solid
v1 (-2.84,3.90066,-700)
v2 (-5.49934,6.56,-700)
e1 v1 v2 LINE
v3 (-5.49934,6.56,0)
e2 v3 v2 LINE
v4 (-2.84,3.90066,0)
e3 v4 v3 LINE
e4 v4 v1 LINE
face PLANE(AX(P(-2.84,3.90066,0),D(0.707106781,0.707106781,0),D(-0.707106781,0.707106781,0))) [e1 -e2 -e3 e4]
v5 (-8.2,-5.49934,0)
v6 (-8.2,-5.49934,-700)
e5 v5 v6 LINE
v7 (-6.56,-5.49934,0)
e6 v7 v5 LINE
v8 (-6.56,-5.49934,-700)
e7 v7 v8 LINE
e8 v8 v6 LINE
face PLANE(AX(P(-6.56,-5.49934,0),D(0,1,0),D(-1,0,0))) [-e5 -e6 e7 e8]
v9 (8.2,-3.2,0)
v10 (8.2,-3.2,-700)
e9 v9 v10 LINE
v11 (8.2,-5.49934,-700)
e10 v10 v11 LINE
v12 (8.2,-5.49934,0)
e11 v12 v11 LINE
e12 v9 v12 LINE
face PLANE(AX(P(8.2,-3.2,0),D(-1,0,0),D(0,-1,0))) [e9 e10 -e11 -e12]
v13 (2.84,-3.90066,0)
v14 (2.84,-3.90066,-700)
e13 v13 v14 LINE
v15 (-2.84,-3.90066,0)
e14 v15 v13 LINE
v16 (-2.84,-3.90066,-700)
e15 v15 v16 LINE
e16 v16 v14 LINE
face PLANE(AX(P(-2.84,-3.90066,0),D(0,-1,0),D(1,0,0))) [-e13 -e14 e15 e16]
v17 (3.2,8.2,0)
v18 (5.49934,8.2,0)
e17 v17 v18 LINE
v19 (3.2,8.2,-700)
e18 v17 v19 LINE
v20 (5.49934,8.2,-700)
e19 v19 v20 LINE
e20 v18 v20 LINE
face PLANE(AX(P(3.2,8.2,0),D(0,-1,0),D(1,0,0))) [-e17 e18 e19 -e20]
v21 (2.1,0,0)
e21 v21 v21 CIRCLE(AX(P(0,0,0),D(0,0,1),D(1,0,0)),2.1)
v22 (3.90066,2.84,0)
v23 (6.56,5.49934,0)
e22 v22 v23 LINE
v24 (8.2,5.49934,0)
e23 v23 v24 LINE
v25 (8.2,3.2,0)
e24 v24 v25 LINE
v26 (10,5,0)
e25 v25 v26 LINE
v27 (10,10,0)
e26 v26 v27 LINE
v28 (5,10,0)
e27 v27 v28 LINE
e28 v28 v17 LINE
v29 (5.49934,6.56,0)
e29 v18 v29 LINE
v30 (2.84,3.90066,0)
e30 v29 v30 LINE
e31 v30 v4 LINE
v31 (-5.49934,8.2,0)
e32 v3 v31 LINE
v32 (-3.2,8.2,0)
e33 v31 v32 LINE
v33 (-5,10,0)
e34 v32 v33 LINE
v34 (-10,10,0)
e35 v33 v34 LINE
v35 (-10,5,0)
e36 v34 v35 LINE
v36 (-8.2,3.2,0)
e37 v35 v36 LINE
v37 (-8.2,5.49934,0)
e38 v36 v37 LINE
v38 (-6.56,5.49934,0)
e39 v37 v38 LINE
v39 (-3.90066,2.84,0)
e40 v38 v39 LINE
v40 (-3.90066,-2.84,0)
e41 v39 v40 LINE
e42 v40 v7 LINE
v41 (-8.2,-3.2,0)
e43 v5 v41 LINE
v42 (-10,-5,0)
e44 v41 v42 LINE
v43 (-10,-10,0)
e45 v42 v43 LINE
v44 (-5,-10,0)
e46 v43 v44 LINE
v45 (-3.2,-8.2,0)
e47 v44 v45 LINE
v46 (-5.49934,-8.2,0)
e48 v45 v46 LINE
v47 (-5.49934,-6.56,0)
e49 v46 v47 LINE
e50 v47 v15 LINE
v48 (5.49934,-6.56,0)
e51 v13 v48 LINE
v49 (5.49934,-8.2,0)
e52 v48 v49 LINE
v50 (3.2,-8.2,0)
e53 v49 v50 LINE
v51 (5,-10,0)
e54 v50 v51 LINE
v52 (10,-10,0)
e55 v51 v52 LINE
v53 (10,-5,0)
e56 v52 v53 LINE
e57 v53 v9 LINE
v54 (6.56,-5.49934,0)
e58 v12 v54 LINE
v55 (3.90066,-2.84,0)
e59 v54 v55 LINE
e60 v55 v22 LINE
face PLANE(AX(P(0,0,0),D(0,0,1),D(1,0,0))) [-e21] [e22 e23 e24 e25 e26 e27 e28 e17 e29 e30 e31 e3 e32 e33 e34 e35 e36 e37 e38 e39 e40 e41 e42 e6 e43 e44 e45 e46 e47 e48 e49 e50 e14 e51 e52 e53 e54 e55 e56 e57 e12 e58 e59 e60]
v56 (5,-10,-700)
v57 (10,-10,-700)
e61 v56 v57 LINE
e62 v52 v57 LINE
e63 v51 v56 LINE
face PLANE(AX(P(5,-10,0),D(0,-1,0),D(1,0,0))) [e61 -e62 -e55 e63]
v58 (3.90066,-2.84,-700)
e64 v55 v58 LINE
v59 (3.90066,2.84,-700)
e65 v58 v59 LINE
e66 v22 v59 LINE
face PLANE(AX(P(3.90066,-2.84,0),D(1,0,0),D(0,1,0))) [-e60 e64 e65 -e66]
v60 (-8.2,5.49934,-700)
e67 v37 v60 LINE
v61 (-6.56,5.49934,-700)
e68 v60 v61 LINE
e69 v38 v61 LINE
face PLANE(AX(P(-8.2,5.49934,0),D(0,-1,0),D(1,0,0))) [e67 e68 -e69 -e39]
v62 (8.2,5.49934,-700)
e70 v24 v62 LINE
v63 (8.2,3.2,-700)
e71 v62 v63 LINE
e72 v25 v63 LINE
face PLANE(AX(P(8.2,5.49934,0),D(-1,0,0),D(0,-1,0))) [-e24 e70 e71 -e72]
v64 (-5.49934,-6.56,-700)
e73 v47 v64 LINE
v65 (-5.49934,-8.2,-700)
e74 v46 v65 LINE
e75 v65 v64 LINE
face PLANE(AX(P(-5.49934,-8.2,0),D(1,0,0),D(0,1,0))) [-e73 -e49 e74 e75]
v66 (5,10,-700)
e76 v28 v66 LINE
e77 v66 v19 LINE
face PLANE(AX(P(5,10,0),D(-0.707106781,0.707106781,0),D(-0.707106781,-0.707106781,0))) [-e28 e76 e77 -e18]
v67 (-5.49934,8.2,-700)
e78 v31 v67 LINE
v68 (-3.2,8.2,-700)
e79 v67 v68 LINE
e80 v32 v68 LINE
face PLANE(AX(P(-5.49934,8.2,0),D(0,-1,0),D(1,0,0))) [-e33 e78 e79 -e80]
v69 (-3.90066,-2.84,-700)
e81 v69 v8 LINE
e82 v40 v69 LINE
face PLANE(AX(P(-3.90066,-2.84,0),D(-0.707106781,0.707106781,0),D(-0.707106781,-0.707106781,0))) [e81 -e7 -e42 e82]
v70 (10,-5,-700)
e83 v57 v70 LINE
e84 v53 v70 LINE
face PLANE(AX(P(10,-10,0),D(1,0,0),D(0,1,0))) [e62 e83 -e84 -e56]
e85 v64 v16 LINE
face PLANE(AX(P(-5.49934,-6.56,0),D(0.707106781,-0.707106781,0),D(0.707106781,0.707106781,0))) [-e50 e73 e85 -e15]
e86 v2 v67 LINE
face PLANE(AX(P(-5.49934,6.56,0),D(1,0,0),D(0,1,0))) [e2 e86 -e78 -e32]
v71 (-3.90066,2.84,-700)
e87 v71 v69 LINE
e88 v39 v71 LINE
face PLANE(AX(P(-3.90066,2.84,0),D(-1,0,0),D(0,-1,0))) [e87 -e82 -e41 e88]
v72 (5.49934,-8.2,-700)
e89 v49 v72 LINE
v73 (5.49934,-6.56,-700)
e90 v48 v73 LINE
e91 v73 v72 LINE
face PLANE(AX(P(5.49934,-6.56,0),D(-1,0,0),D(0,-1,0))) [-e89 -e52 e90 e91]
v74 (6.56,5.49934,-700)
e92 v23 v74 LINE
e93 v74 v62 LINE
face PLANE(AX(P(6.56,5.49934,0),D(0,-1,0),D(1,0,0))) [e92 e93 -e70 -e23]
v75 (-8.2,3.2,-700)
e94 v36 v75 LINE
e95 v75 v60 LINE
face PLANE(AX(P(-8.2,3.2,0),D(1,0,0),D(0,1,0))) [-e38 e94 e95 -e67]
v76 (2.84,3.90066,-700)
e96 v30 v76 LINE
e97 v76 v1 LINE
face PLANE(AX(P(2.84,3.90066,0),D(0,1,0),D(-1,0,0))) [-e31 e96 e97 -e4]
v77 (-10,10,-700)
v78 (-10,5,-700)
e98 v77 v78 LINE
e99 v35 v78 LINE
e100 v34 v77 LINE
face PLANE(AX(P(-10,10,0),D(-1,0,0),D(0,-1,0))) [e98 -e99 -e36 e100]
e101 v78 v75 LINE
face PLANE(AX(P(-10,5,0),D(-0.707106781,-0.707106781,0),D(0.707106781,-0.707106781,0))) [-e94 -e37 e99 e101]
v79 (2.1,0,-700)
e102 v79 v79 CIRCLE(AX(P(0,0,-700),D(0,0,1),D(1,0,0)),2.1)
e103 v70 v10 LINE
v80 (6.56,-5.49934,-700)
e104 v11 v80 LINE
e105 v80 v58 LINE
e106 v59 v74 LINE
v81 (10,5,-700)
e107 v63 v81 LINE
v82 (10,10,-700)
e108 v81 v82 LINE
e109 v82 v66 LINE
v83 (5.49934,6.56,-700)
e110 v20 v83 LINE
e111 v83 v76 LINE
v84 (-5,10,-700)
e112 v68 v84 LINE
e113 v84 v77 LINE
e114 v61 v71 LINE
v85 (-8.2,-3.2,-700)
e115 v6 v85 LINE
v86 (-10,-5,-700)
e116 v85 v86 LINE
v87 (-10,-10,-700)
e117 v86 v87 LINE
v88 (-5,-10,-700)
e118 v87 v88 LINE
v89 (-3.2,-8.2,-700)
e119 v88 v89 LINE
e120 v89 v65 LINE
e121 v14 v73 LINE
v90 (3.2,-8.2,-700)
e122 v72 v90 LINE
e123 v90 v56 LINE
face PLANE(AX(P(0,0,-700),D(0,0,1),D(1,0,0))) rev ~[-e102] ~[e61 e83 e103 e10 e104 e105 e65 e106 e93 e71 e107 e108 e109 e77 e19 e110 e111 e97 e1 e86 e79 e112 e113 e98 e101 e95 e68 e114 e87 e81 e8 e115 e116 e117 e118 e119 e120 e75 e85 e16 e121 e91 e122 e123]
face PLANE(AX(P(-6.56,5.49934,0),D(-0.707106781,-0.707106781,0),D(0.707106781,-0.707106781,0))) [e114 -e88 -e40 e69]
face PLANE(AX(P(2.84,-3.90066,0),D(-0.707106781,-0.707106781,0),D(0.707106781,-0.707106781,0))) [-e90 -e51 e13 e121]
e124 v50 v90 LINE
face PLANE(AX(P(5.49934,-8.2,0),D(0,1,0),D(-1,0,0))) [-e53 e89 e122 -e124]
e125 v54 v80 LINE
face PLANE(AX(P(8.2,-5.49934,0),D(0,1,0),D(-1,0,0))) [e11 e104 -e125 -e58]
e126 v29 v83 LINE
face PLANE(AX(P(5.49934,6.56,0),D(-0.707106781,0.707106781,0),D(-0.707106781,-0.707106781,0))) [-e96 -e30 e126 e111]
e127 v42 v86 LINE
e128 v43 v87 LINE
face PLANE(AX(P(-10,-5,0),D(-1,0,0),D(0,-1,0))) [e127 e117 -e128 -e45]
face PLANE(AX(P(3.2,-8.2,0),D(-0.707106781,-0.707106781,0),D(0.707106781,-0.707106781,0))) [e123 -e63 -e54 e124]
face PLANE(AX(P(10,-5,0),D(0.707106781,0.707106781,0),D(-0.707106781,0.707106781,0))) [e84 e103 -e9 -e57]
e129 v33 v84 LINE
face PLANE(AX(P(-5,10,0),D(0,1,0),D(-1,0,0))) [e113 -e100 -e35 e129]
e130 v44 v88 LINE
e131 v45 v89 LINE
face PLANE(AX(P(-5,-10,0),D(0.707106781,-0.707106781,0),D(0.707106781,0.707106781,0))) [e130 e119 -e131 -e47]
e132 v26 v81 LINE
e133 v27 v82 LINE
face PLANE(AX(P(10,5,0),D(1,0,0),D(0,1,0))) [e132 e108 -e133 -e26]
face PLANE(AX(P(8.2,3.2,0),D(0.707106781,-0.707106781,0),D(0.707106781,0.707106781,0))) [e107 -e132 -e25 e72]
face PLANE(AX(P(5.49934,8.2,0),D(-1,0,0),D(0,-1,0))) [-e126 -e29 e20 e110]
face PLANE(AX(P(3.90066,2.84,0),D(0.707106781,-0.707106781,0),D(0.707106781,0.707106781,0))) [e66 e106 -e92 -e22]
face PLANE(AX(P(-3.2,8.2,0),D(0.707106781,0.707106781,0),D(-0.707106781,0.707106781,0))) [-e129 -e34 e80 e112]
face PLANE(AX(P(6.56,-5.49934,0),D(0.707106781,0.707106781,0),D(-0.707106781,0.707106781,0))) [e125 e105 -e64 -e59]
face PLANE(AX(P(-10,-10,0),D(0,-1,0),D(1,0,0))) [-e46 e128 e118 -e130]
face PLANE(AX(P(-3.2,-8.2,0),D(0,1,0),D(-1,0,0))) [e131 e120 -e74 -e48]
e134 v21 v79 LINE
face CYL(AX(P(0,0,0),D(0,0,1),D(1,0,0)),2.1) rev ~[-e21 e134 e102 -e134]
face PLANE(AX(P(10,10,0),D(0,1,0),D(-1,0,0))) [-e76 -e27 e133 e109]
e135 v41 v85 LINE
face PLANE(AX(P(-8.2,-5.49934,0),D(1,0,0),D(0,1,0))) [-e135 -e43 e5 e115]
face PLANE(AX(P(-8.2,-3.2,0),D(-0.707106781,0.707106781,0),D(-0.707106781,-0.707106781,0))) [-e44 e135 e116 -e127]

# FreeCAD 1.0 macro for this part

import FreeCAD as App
import Part
import Sketcher

V = App.Vector


def add_polygon(sketch, points):
    """Adds a closed chain of lines whose ends are joined by coincident constraints."""
    first, n = sketch.GeometryCount, len(points)
    for a, b in zip(points, points[1:] + points[:1]):
        sketch.addGeometry(Part.LineSegment(App.Vector(*a, 0), App.Vector(*b, 0)), False)
    for i in range(n):
        sketch.addConstraint(Sketcher.Constraint("Coincident", first + i, 2, first + (i + 1) % n, 1))

doc = App.newDocument("Part")
body = doc.addObject("PartDesign::Body", "Body")

sketch1 = body.newObject("Sketcher::SketchObject", "Sketch")
sketch1.AttachmentSupport = (doc.getObject("XY_Plane"), [""])
sketch1.MapMode = "FlatFace"
add_polygon(sketch1, [(-10, 10), (-10, 5), (-8.2, 3.2), (-8.2, 5.49934), (-6.56, 5.49934), (-3.90066, 2.84), (-3.90066, -2.84), (-6.56, -5.49934), (-8.2, -5.49934), (-8.2, -3.2), (-10, -5), (-10, -10), (-5, -10), (-3.2, -8.2), (-5.49934, -8.2), (-5.49934, -6.56), (-2.84, -3.90066), (2.84, -3.90066), (5.49934, -6.56), (5.49934, -8.2), (3.2, -8.2), (5, -10), (10, -10), (10, -5), (8.2, -3.2), (8.2, -5.49934), (6.56, -5.49934), (3.90066, -2.84), (3.90066, 2.84), (6.56, 5.49934), (8.2, 5.49934), (8.2, 3.2), (10, 5), (10, 10), (5, 10), (3.2, 8.2), (5.49934, 8.2), (5.49934, 6.56), (2.84, 3.90066), (-2.84, 3.90066), (-5.49934, 6.56), (-5.49934, 8.2), (-3.2, 8.2), (-5, 10)])
sketch1.addGeometry(Part.Circle(V(0, 0, 0), V(0, 0, 1), 2.1), False)
sketch1.addConstraint(Sketcher.Constraint("Vertical", 0))
sketch1.addConstraint(Sketcher.Constraint("Vertical", 2))
sketch1.addConstraint(Sketcher.Constraint("Horizontal", 3))
sketch1.addConstraint(Sketcher.Constraint("Vertical", 5))
sketch1.addConstraint(Sketcher.Constraint("Horizontal", 7))
sketch1.addConstraint(Sketcher.Constraint("Vertical", 8))
sketch1.addConstraint(Sketcher.Constraint("Vertical", 10))
sketch1.addConstraint(Sketcher.Constraint("Horizontal", 11))
sketch1.addConstraint(Sketcher.Constraint("Horizontal", 13))
sketch1.addConstraint(Sketcher.Constraint("Vertical", 14))
sketch1.addConstraint(Sketcher.Constraint("Horizontal", 16))
sketch1.addConstraint(Sketcher.Constraint("Vertical", 18))
sketch1.addConstraint(Sketcher.Constraint("Horizontal", 19))
sketch1.addConstraint(Sketcher.Constraint("Horizontal", 21))
sketch1.addConstraint(Sketcher.Constraint("Vertical", 22))
sketch1.addConstraint(Sketcher.Constraint("Vertical", 24))
sketch1.addConstraint(Sketcher.Constraint("Horizontal", 25))
sketch1.addConstraint(Sketcher.Constraint("Vertical", 27))
sketch1.addConstraint(Sketcher.Constraint("Horizontal", 29))
sketch1.addConstraint(Sketcher.Constraint("Vertical", 30))
sketch1.addConstraint(Sketcher.Constraint("Vertical", 32))
sketch1.addConstraint(Sketcher.Constraint("Horizontal", 33))
sketch1.addConstraint(Sketcher.Constraint("Horizontal", 35))
sketch1.addConstraint(Sketcher.Constraint("Vertical", 36))
sketch1.addConstraint(Sketcher.Constraint("Horizontal", 38))
sketch1.addConstraint(Sketcher.Constraint("Vertical", 40))
sketch1.addConstraint(Sketcher.Constraint("Horizontal", 41))
sketch1.addConstraint(Sketcher.Constraint("Horizontal", 43))
sketch1.addConstraint(Sketcher.Constraint("Coincident", 44, 3, -1, 1))
sketch1.addConstraint(Sketcher.Constraint("Symmetric", 0, 2, 22, 2, -1, 1))
sketch1.addConstraint(Sketcher.Constraint("Symmetric", 1, 2, 23, 2, -1, 1))
sketch1.addConstraint(Sketcher.Constraint("Symmetric", 3, 2, 25, 2, -1, 1))
sketch1.addConstraint(Sketcher.Constraint("Symmetric", 4, 2, 26, 2, -1, 1))
sketch1.addConstraint(Sketcher.Constraint("Symmetric", 6, 2, 28, 2, -1, 1))
sketch1.addConstraint(Sketcher.Constraint("Symmetric", 8, 2, 30, 2, -1, 1))
sketch1.addConstraint(Sketcher.Constraint("Symmetric", 9, 2, 31, 2, -1, 1))
sketch1.addConstraint(Sketcher.Constraint("Symmetric", 11, 2, 33, 2, -1, 1))
sketch1.addConstraint(Sketcher.Constraint("Symmetric", 12, 2, 34, 2, -1, 1))
sketch1.addConstraint(Sketcher.Constraint("Symmetric", 14, 2, 36, 2, -1, 1))
sketch1.addConstraint(Sketcher.Constraint("Symmetric", 15, 2, 37, 2, -1, 1))
sketch1.addConstraint(Sketcher.Constraint("Symmetric", 17, 2, 39, 2, -1, 1))
sketch1.addConstraint(Sketcher.Constraint("Symmetric", 19, 2, 41, 2, -1, 1))
sketch1.addConstraint(Sketcher.Constraint("Symmetric", 20, 2, 42, 2, -1, 1))
sketch1.addConstraint(Sketcher.Constraint("Symmetric", 14, 2, 17, 2, -2))
sketch1.addConstraint(Sketcher.Constraint("Symmetric", 12, 2, 19, 2, -2))
sketch1.addConstraint(Sketcher.Constraint("Symmetric", 11, 2, 20, 2, -2))
sketch1.addConstraint(Sketcher.Constraint("Symmetric", 9, 2, 22, 2, -2))
sketch1.addConstraint(Sketcher.Constraint("Symmetric", 8, 2, 23, 2, -2))
sketch1.addConstraint(Sketcher.Constraint("Symmetric", 6, 2, 25, 2, -2))
sketch1.addConstraint(Sketcher.Constraint("Parallel", 1, 4))
sketch1.addConstraint(Sketcher.Constraint("Perpendicular", 4, 6))
sketch1.addConstraint(Sketcher.Constraint("Parallel", 6, 9))
sketch1.addConstraint(Sketcher.Constraint("Parallel", 9, 12))
sketch1.addConstraint(Sketcher.Constraint("Parallel", 12, 15))
sketch1.addConstraint(Sketcher.Constraint("Perpendicular", 15, 17))
sketch1.addConstraint(Sketcher.Constraint("Perpendicular", 26, 28))
sketch1.addConstraint(Sketcher.Constraint("Perpendicular", 37, 39))
sketch1.addConstraint(Sketcher.Constraint("Equal", 43, 0))
sketch1.addConstraint(Sketcher.Constraint("Equal", 41, 2))
sketch1.addConstraint(Sketcher.Constraint("Equal", 38, 5))
sketch1.addConstraint(Sketcher.Constraint("Equal", 29, 14))
sketch1.addConstraint(Sketcher.Constraint("Equal", 9, 12))
sketch1.addConstraint(Sketcher.Constraint("Equal", 6, 15))
sketch1.addConstraint(Sketcher.Constraint("Diameter", 44, 4.2))
sketch1.addConstraint(Sketcher.Constraint("DistanceX", 11, 1, 11, 2, 5.0))
sketch1.addConstraint(Sketcher.Constraint("DistanceX", 0, 2, -1, 1, 10.0))
sketch1.addConstraint(Sketcher.Constraint("DistanceX", 3, 1, 3, 2, 1.64))
sketch1.addConstraint(Sketcher.Constraint("DistanceX", 16, 1, 16, 2, 5.68))
sketch1.addConstraint(Sketcher.Constraint("DistanceX", 1, 2, -1, 1, 8.2))
sketch1.addConstraint(Sketcher.Constraint("DistanceX", 13, 2, 13, 1, 2.29934))
pad1 = body.newObject("PartDesign::Pad", "Pad")
pad1.Profile = sketch1
pad1.Length = 700
pad1.Reversed = True

doc.recompute()
